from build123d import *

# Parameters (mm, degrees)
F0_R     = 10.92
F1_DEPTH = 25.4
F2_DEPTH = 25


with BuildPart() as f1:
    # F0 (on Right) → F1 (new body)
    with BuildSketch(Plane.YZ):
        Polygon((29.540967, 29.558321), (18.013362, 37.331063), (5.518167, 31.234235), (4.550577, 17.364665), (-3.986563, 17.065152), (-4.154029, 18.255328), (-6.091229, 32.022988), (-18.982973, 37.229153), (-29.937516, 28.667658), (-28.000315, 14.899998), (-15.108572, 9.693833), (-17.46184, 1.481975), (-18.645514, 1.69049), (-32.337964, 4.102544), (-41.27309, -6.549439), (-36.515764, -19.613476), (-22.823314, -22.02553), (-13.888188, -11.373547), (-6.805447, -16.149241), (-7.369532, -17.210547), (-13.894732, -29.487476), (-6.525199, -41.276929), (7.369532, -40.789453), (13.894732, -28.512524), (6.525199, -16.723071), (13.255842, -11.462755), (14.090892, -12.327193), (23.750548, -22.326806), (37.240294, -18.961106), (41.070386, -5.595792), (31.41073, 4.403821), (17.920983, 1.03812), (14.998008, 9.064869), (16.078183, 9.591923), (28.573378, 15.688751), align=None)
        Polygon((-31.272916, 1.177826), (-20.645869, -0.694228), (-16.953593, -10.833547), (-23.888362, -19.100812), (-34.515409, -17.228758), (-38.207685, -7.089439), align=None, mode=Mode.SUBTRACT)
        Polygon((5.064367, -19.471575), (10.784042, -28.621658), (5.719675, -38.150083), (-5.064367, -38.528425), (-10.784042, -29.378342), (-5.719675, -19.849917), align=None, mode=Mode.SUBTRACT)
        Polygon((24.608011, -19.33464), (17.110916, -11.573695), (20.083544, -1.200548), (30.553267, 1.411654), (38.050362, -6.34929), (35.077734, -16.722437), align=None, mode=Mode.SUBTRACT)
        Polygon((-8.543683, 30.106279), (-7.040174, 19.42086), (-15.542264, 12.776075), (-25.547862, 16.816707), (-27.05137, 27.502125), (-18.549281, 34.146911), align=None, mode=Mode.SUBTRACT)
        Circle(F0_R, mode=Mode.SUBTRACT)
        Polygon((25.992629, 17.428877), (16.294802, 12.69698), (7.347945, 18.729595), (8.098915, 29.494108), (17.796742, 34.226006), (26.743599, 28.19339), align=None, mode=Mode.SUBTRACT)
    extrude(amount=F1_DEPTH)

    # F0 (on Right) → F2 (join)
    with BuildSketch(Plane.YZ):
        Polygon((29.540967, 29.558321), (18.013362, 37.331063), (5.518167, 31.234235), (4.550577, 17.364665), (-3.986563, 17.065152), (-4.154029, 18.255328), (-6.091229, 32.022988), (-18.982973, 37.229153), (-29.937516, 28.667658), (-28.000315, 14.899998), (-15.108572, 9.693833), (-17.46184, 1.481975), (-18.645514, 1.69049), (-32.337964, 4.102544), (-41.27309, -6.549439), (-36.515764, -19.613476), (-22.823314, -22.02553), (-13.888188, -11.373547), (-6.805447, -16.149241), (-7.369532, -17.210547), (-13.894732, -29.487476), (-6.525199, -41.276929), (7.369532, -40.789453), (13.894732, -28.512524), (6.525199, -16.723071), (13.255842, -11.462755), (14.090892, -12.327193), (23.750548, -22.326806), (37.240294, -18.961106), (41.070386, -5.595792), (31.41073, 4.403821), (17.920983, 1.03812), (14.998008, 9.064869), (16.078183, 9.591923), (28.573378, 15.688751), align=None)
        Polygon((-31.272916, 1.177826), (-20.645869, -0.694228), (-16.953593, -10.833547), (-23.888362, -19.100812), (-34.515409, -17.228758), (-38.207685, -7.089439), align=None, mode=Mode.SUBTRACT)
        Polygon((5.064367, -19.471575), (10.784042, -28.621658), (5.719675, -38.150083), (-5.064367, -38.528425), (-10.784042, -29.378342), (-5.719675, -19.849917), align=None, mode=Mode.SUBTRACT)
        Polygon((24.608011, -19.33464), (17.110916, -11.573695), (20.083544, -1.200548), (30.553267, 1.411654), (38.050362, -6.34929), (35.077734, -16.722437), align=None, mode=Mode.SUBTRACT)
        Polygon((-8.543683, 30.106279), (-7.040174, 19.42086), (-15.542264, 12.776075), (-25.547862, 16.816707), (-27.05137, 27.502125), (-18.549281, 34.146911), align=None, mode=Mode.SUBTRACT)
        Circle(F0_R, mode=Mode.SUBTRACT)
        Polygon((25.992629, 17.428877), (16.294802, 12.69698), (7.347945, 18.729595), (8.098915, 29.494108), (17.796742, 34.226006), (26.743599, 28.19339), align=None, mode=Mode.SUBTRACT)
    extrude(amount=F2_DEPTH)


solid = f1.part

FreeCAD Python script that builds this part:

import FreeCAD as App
import Part
import Sketcher

V = App.Vector


def add_polygon(sketch, points):
    """Adds a closed chain of lines whose ends are joined by coincident constraints."""
    first, n = sketch.GeometryCount, len(points)
    for a, b in zip(points, points[1:] + points[:1]):
        sketch.addGeometry(Part.LineSegment(App.Vector(*a, 0), App.Vector(*b, 0)), False)
    for i in range(n):
        sketch.addConstraint(Sketcher.Constraint("Coincident", first + i, 2, first + (i + 1) % n, 1))

doc = App.newDocument("Part")
body = doc.addObject("PartDesign::Body", "Body")

sketch1 = doc.addObject("Sketcher::SketchObject", "Sketch")
body.addObject(sketch1)
sketch1.AttachmentSupport = (doc.YZ_Plane, [""])
sketch1.MapMode = "FlatFace"
add_polygon(sketch1, [(29.540967, 29.558321), (18.013362, 37.331063), (5.518167, 31.234235), (4.550577, 17.364665), (-3.986563, 17.065152), (-4.154029, 18.255328), (-6.091229, 32.022988), (-18.982973, 37.229153), (-29.937516, 28.667658), (-28.000315, 14.899998), (-15.108572, 9.693833), (-17.46184, 1.481975), (-18.645514, 1.69049), (-32.337964, 4.102544), (-41.27309, -6.549439), (-36.515764, -19.613476), (-22.823314, -22.02553), (-13.888188, -11.373547), (-6.805447, -16.149241), (-7.369532, -17.210547), (-13.894732, -29.487476), (-6.525199, -41.276929), (7.369532, -40.789453), (13.894732, -28.512524), (6.525199, -16.723071), (13.255842, -11.462755), (14.090892, -12.327193), (23.750548, -22.326806), (37.240294, -18.961106), (41.070386, -5.595792), (31.41073, 4.403821), (17.920983, 1.03812), (14.998008, 9.064869), (16.078183, 9.591923), (28.573378, 15.688751)])
add_polygon(sketch1, [(-38.207685, -7.089439), (-31.272916, 1.177826), (-20.645869, -0.694228), (-16.953593, -10.833547), (-23.888362, -19.100812), (-34.515409, -17.228758)])
add_polygon(sketch1, [(-5.719675, -19.849917), (5.064367, -19.471575), (10.784042, -28.621658), (5.719675, -38.150083), (-5.064367, -38.528425), (-10.784042, -29.378342)])
add_polygon(sketch1, [(35.077734, -16.722437), (24.608011, -19.33464), (17.110916, -11.573695), (20.083544, -1.200548), (30.553267, 1.411654), (38.050362, -6.34929)])
add_polygon(sketch1, [(-18.549281, 34.146911), (-8.543683, 30.106279), (-7.040174, 19.42086), (-15.542264, 12.776075), (-25.547862, 16.816707), (-27.05137, 27.502125)])
sketch1.addGeometry(Part.Circle(V(0, 0, 0), V(0, 0, 1), 10.92), False)
add_polygon(sketch1, [(26.743599, 28.19339), (25.992629, 17.428877), (16.294802, 12.69698), (7.347945, 18.729595), (8.098915, 29.494108), (17.796742, 34.226006)])
sketch1.addConstraint(Sketcher.Constraint("Coincident", 59, 3, -1, 1))
sketch1.addConstraint(Sketcher.Constraint("Diameter", 59, 21.84))
sketch1.addConstraint(Sketcher.Constraint("Distance", 4, 1.2019))
sketch1.addConstraint(Sketcher.Constraint("Distance", 11, 1.2019))
sketch1.addConstraint(Sketcher.Constraint("Distance", 18, 1.201899))
sketch1.addConstraint(Sketcher.Constraint("Distance", 25, 1.201899))
sketch1.addConstraint(Sketcher.Constraint("Distance", 32, 1.2019))
sketch1.addConstraint(Sketcher.Constraint("DistanceX", 20, 2, -1, 1, 6.525199))
sketch1.addConstraint(Sketcher.Constraint("DistanceX", -1, 1, 23, 2, 6.525199))
sketch1.addConstraint(Sketcher.Constraint("DistanceX", -1, 1, 65, 2, 26.743599))
sketch1.addConstraint(Sketcher.Constraint("Distance", 0, 13.90328))
sketch1.addConstraint(Sketcher.Constraint("Distance", 1, 13.903281))
sketch1.addConstraint(Sketcher.Constraint("Distance", 2, 13.90328))
sketch1.addConstraint(Sketcher.Constraint("Distance", 5, 13.90328))
sketch1.addConstraint(Sketcher.Constraint("Distance", 6, 13.903281))
sketch1.addConstraint(Sketcher.Constraint("Distance", 7, 13.903281))
sketch1.addConstraint(Sketcher.Constraint("Distance", 8, 13.903281))
sketch1.addConstraint(Sketcher.Constraint("Distance", 9, 13.90328))
sketch1.addConstraint(Sketcher.Constraint("Distance", 12, 13.90328))
sketch1.addConstraint(Sketcher.Constraint("Distance", 13, 13.903281))
sketch1.addConstraint(Sketcher.Constraint("Distance", 14, 13.903281))
sketch1.addConstraint(Sketcher.Constraint("Distance", 15, 13.90328))
sketch1.addConstraint(Sketcher.Constraint("Distance", 16, 13.903281))
sketch1.addConstraint(Sketcher.Constraint("Distance", 19, 13.903281))
sketch1.addConstraint(Sketcher.Constraint("Distance", 20, 13.903281))
sketch1.addConstraint(Sketcher.Constraint("Distance", 21, 13.90328))
sketch1.addConstraint(Sketcher.Constraint("Distance", 22, 13.903281))
sketch1.addConstraint(Sketcher.Constraint("Distance", 23, 13.903281))
sketch1.addConstraint(Sketcher.Constraint("Distance", 26, 13.903281))
sketch1.addConstraint(Sketcher.Constraint("Distance", 27, 13.90328))
sketch1.addConstraint(Sketcher.Constraint("Distance", 28, 13.903281))
sketch1.addConstraint(Sketcher.Constraint("Distance", 29, 13.903281))
sketch1.addConstraint(Sketcher.Constraint("Distance", 30, 13.903281))
sketch1.addConstraint(Sketcher.Constraint("Distance", 33, 13.903281))
sketch1.addConstraint(Sketcher.Constraint("Distance", 34, 13.90328))
sketch1.addConstraint(Sketcher.Constraint("DistanceX", 4, 2, -1, 1, 4.154029))
sketch1.addConstraint(Sketcher.Constraint("DistanceX", 5, 2, -1, 1, 6.091229))
sketch1.addConstraint(Sketcher.Constraint("DistanceX", 10, 2, -1, 1, 17.46184))
sketch1.addConstraint(Sketcher.Constraint("DistanceY", -1, 1, 11, 2, 1.69049))
sketch1.addConstraint(Sketcher.Constraint("DistanceX", 13, 2, -1, 1, 41.27309))
sketch1.addConstraint(Sketcher.Constraint("DistanceY", 13, 2, -1, 1, 6.549439))
sketch1.addConstraint(Sketcher.Constraint("DistanceY", 15, 2, -1, 1, 22.02553))
sketch1.addConstraint(Sketcher.Constraint("DistanceY", 17, 2, -1, 1, 16.149241))
sketch1.addConstraint(Sketcher.Constraint("DistanceY", 20, 2, -1, 1, 41.276929))
sketch1.addConstraint(Sketcher.Constraint("DistanceY", 23, 2, -1, 1, 16.723071))
sketch1.addConstraint(Sketcher.Constraint("DistanceX", -1, 1, 29, 2, 31.41073))
sketch1.addConstraint(Sketcher.Constraint("DistanceY", -1, 1, 29, 2, 4.403821))
sketch1.addConstraint(Sketcher.Constraint("DistanceY", -1, 1, 30, 2, 1.03812))
sketch1.addConstraint(Sketcher.Constraint("DistanceY", -1, 1, 31, 2, 9.064869))
sketch1.addConstraint(Sketcher.Constraint("DistanceX", -1, 1, 33, 2, 28.573378))
sketch1.addConstraint(Sketcher.Constraint("DistanceY", -1, 1, 33, 2, 15.688751))
sketch1.addConstraint(Sketcher.Constraint("DistanceY", -1, 1, 34, 2, 29.558321))
sketch1.addConstraint(Sketcher.Constraint("DistanceX", 36, 2, -1, 1, 20.645869))
sketch1.addConstraint(Sketcher.Constraint("DistanceX", 39, 2, -1, 1, 34.515409))
sketch1.addConstraint(Sketcher.Constraint("DistanceY", 40, 2, -1, 1, 7.089439))
sketch1.addConstraint(Sketcher.Constraint("DistanceY", 42, 2, -1, 1, 28.621658))
sketch1.addConstraint(Sketcher.Constraint("DistanceY", 45, 2, -1, 1, 29.378342))
sketch1.addConstraint(Sketcher.Constraint("DistanceX", -1, 1, 47, 2, 24.608011))
sketch1.addConstraint(Sketcher.Constraint("DistanceY", 47, 2, -1, 1, 19.33464))
sketch1.addConstraint(Sketcher.Constraint("DistanceY", 51, 2, -1, 1, 6.34929))
sketch1.addConstraint(Sketcher.Constraint("DistanceY", -1, 1, 53, 2, 30.106279))
sketch1.addConstraint(Sketcher.Constraint("DistanceY", -1, 1, 54, 2, 19.42086))
sketch1.addConstraint(Sketcher.Constraint("DistanceX", 56, 2, -1, 1, 25.547862))
sketch1.addConstraint(Sketcher.Constraint("DistanceX", 57, 2, -1, 1, 27.05137))
sketch1.addConstraint(Sketcher.Constraint("DistanceX", 58, 2, -1, 1, 18.549281))
sketch1.addConstraint(Sketcher.Constraint("DistanceY", -1, 1, 58, 2, 34.146911))
sketch1.addConstraint(Sketcher.Constraint("DistanceX", -1, 1, 60, 2, 25.992629))
sketch1.addConstraint(Sketcher.Constraint("DistanceY", -1, 1, 61, 2, 12.69698))
sketch1.addConstraint(Sketcher.Constraint("DistanceY", -1, 1, 63, 2, 29.494108))
sketch1.addConstraint(Sketcher.Constraint("DistanceX", -1, 1, 64, 2, 17.796742))
sketch1.addConstraint(Sketcher.Constraint("DistanceY", -1, 1, 65, 2, 28.19339))
sketch1.addConstraint(Sketcher.Constraint("Distance", 3, 8.542392))
sketch1.addConstraint(Sketcher.Constraint("Distance", 10, 8.542393))
sketch1.addConstraint(Sketcher.Constraint("Distance", 17, 8.542393))
sketch1.addConstraint(Sketcher.Constraint("Distance", 24, 8.542393))
sketch1.addConstraint(Sketcher.Constraint("Distance", 35, 10.790676))
sketch1.addConstraint(Sketcher.Constraint("Distance", 36, 10.790677))
sketch1.addConstraint(Sketcher.Constraint("Distance", 37, 10.790676))
sketch1.addConstraint(Sketcher.Constraint("Distance", 38, 10.790676))
sketch1.addConstraint(Sketcher.Constraint("Distance", 39, 10.790677))
sketch1.addConstraint(Sketcher.Constraint("Distance", 40, 10.790676))
sketch1.addConstraint(Sketcher.Constraint("Distance", 41, 10.790677))
sketch1.addConstraint(Sketcher.Constraint("Distance", 42, 10.790677))
sketch1.addConstraint(Sketcher.Constraint("Distance", 43, 10.790676))
sketch1.addConstraint(Sketcher.Constraint("Distance", 44, 10.790677))
sketch1.addConstraint(Sketcher.Constraint("Distance", 45, 10.790677))
sketch1.addConstraint(Sketcher.Constraint("Distance", 46, 10.790676))
sketch1.addConstraint(Sketcher.Constraint("Distance", 47, 10.790677))
sketch1.addConstraint(Sketcher.Constraint("Distance", 48, 10.790677))
sketch1.addConstraint(Sketcher.Constraint("Distance", 49, 10.790676))
sketch1.addConstraint(Sketcher.Constraint("Distance", 50, 10.790676))
sketch1.addConstraint(Sketcher.Constraint("Distance", 51, 10.790676))
sketch1.addConstraint(Sketcher.Constraint("Distance", 52, 10.790676))
sketch1.addConstraint(Sketcher.Constraint("Distance", 53, 10.790676))
sketch1.addConstraint(Sketcher.Constraint("Distance", 54, 10.790677))
sketch1.addConstraint(Sketcher.Constraint("Distance", 55, 10.790677))
sketch1.addConstraint(Sketcher.Constraint("Distance", 56, 10.790676))
sketch1.addConstraint(Sketcher.Constraint("Distance", 57, 10.790676))
sketch1.addConstraint(Sketcher.Constraint("Distance", 58, 10.790676))
sketch1.addConstraint(Sketcher.Constraint("Distance", 60, 10.790676))
sketch1.addConstraint(Sketcher.Constraint("Distance", 61, 10.790676))
sketch1.addConstraint(Sketcher.Constraint("Distance", 62, 10.790676))
sketch1.addConstraint(Sketcher.Constraint("Distance", 63, 10.790676))
sketch1.addConstraint(Sketcher.Constraint("Distance", 64, 10.790677))
sketch1.addConstraint(Sketcher.Constraint("Distance", 65, 10.790677))
sketch1.addConstraint(Sketcher.Constraint("DistanceX", -1, 1, 0, 2, 18.013362))
sketch1.addConstraint(Sketcher.Constraint("DistanceX", -1, 1, 1, 2, 5.518167))
sketch1.addConstraint(Sketcher.Constraint("DistanceX", -1, 1, 2, 2, 4.550577))
sketch1.addConstraint(Sketcher.Constraint("DistanceX", 3, 2, -1, 1, 3.986563))
sketch1.addConstraint(Sketcher.Constraint("DistanceX", 6, 2, -1, 1, 18.982973))
sketch1.addConstraint(Sketcher.Constraint("DistanceX", 7, 2, -1, 1, 29.937516))
sketch1.addConstraint(Sketcher.Constraint("DistanceX", 8, 2, -1, 1, 28.000315))
sketch1.addConstraint(Sketcher.Constraint("DistanceX", 9, 2, -1, 1, 15.108572))
sketch1.addConstraint(Sketcher.Constraint("DistanceX", 14, 2, -1, 1, 36.515764))
sketch1.addConstraint(Sketcher.Constraint("DistanceX", 16, 2, -1, 1, 13.888188))
sketch1.addConstraint(Sketcher.Constraint("DistanceX", 18, 2, -1, 1, 7.369532))
sketch1.addConstraint(Sketcher.Constraint("DistanceX", -1, 1, 21, 2, 7.369532))
sketch1.addConstraint(Sketcher.Constraint("DistanceX", -1, 1, 24, 2, 13.255842))
sketch1.addConstraint(Sketcher.Constraint("DistanceX", -1, 1, 25, 2, 14.090892))
sketch1.addConstraint(Sketcher.Constraint("DistanceX", -1, 1, 26, 2, 23.750548))
sketch1.addConstraint(Sketcher.Constraint("DistanceX", -1, 1, 27, 2, 37.240294))
sketch1.addConstraint(Sketcher.Constraint("DistanceX", -1, 1, 32, 2, 16.078183))
sketch1.addConstraint(Sketcher.Constraint("DistanceX", 35, 2, -1, 1, 31.272916))
sketch1.addConstraint(Sketcher.Constraint("DistanceY", -1, 1, 35, 2, 1.177826))
sketch1.addConstraint(Sketcher.Constraint("DistanceX", 37, 2, -1, 1, 16.953593))
sketch1.addConstraint(Sketcher.Constraint("DistanceX", -1, 1, 41, 2, 5.064367))
sketch1.addConstraint(Sketcher.Constraint("DistanceY", 41, 2, -1, 1, 19.471575))
sketch1.addConstraint(Sketcher.Constraint("DistanceX", -1, 1, 43, 2, 5.719675))
sketch1.addConstraint(Sketcher.Constraint("DistanceX", 44, 2, -1, 1, 5.064367))
sketch1.addConstraint(Sketcher.Constraint("DistanceX", -1, 1, 48, 2, 17.110916))
sketch1.addConstraint(Sketcher.Constraint("DistanceX", -1, 1, 49, 2, 20.083544))
sketch1.addConstraint(Sketcher.Constraint("DistanceX", -1, 1, 50, 2, 30.553267))
pad1 = doc.addObject("PartDesign::Pad", "Pad")
body.addObject(pad1)
pad1.Profile = sketch1
pad1.Length = 25.4

sketch2 = doc.addObject("Sketcher::SketchObject", "Sketch001")
body.addObject(sketch2)
sketch2.AttachmentSupport = (doc.YZ_Plane, [""])
sketch2.MapMode = "FlatFace"
add_polygon(sketch2, [(29.540967, 29.558321), (18.013362, 37.331063), (5.518167, 31.234235), (4.550577, 17.364665), (-3.986563, 17.065152), (-4.154029, 18.255328), (-6.091229, 32.022988), (-18.982973, 37.229153), (-29.937516, 28.667658), (-28.000315, 14.899998), (-15.108572, 9.693833), (-17.46184, 1.481975), (-18.645514, 1.69049), (-32.337964, 4.102544), (-41.27309, -6.549439), (-36.515764, -19.613476), (-22.823314, -22.02553), (-13.888188, -11.373547), (-6.805447, -16.149241), (-7.369532, -17.210547), (-13.894732, -29.487476), (-6.525199, -41.276929), (7.369532, -40.789453), (13.894732, -28.512524), (6.525199, -16.723071), (13.255842, -11.462755), (14.090892, -12.327193), (23.750548, -22.326806), (37.240294, -18.961106), (41.070386, -5.595792), (31.41073, 4.403821), (17.920983, 1.03812), (14.998008, 9.064869), (16.078183, 9.591923), (28.573378, 15.688751)])
add_polygon(sketch2, [(-38.207685, -7.089439), (-31.272916, 1.177826), (-20.645869, -0.694228), (-16.953593, -10.833547), (-23.888362, -19.100812), (-34.515409, -17.228758)])
add_polygon(sketch2, [(-5.719675, -19.849917), (5.064367, -19.471575), (10.784042, -28.621658), (5.719675, -38.150083), (-5.064367, -38.528425), (-10.784042, -29.378342)])
add_polygon(sketch2, [(35.077734, -16.722437), (24.608011, -19.33464), (17.110916, -11.573695), (20.083544, -1.200548), (30.553267, 1.411654), (38.050362, -6.34929)])
add_polygon(sketch2, [(-18.549281, 34.146911), (-8.543683, 30.106279), (-7.040174, 19.42086), (-15.542264, 12.776075), (-25.547862, 16.816707), (-27.05137, 27.502125)])
sketch2.addGeometry(Part.Circle(V(0, 0, 0), V(0, 0, 1), 10.92), False)
add_polygon(sketch2, [(26.743599, 28.19339), (25.992629, 17.428877), (16.294802, 12.69698), (7.347945, 18.729595), (8.098915, 29.494108), (17.796742, 34.226006)])
sketch2.addConstraint(Sketcher.Constraint("Coincident", 59, 3, -1, 1))
sketch2.addConstraint(Sketcher.Constraint("Diameter", 59, 21.84))
sketch2.addConstraint(Sketcher.Constraint("Distance", 4, 1.2019))
sketch2.addConstraint(Sketcher.Constraint("Distance", 11, 1.2019))
sketch2.addConstraint(Sketcher.Constraint("Distance", 18, 1.201899))
sketch2.addConstraint(Sketcher.Constraint("Distance", 25, 1.201899))
sketch2.addConstraint(Sketcher.Constraint("Distance", 32, 1.2019))
sketch2.addConstraint(Sketcher.Constraint("DistanceX", 20, 2, -1, 1, 6.525199))
sketch2.addConstraint(Sketcher.Constraint("DistanceX", -1, 1, 23, 2, 6.525199))
sketch2.addConstraint(Sketcher.Constraint("DistanceX", -1, 1, 65, 2, 26.743599))
sketch2.addConstraint(Sketcher.Constraint("Distance", 0, 13.90328))
sketch2.addConstraint(Sketcher.Constraint("Distance", 1, 13.903281))
sketch2.addConstraint(Sketcher.Constraint("Distance", 2, 13.90328))
sketch2.addConstraint(Sketcher.Constraint("Distance", 5, 13.90328))
sketch2.addConstraint(Sketcher.Constraint("Distance", 6, 13.903281))
sketch2.addConstraint(Sketcher.Constraint("Distance", 7, 13.903281))
sketch2.addConstraint(Sketcher.Constraint("Distance", 8, 13.903281))
sketch2.addConstraint(Sketcher.Constraint("Distance", 9, 13.90328))
sketch2.addConstraint(Sketcher.Constraint("Distance", 12, 13.90328))
sketch2.addConstraint(Sketcher.Constraint("Distance", 13, 13.903281))
sketch2.addConstraint(Sketcher.Constraint("Distance", 14, 13.903281))
sketch2.addConstraint(Sketcher.Constraint("Distance", 15, 13.90328))
sketch2.addConstraint(Sketcher.Constraint("Distance", 16, 13.903281))
sketch2.addConstraint(Sketcher.Constraint("Distance", 19, 13.903281))
sketch2.addConstraint(Sketcher.Constraint("Distance", 20, 13.903281))
sketch2.addConstraint(Sketcher.Constraint("Distance", 21, 13.90328))
sketch2.addConstraint(Sketcher.Constraint("Distance", 22, 13.903281))
sketch2.addConstraint(Sketcher.Constraint("Distance", 23, 13.903281))
sketch2.addConstraint(Sketcher.Constraint("Distance", 26, 13.903281))
sketch2.addConstraint(Sketcher.Constraint("Distance", 27, 13.90328))
sketch2.addConstraint(Sketcher.Constraint("Distance", 28, 13.903281))
sketch2.addConstraint(Sketcher.Constraint("Distance", 29, 13.903281))
sketch2.addConstraint(Sketcher.Constraint("Distance", 30, 13.903281))
sketch2.addConstraint(Sketcher.Constraint("Distance", 33, 13.903281))
sketch2.addConstraint(Sketcher.Constraint("Distance", 34, 13.90328))
sketch2.addConstraint(Sketcher.Constraint("DistanceX", 4, 2, -1, 1, 4.154029))
sketch2.addConstraint(Sketcher.Constraint("DistanceX", 5, 2, -1, 1, 6.091229))
sketch2.addConstraint(Sketcher.Constraint("DistanceX", 10, 2, -1, 1, 17.46184))
sketch2.addConstraint(Sketcher.Constraint("DistanceY", -1, 1, 11, 2, 1.69049))
sketch2.addConstraint(Sketcher.Constraint("DistanceX", 13, 2, -1, 1, 41.27309))
sketch2.addConstraint(Sketcher.Constraint("DistanceY", 13, 2, -1, 1, 6.549439))
sketch2.addConstraint(Sketcher.Constraint("DistanceY", 15, 2, -1, 1, 22.02553))
sketch2.addConstraint(Sketcher.Constraint("DistanceY", 17, 2, -1, 1, 16.149241))
sketch2.addConstraint(Sketcher.Constraint("DistanceY", 20, 2, -1, 1, 41.276929))
sketch2.addConstraint(Sketcher.Constraint("DistanceY", 23, 2, -1, 1, 16.723071))
sketch2.addConstraint(Sketcher.Constraint("DistanceX", -1, 1, 29, 2, 31.41073))
sketch2.addConstraint(Sketcher.Constraint("DistanceY", -1, 1, 29, 2, 4.403821))
sketch2.addConstraint(Sketcher.Constraint("DistanceY", -1, 1, 30, 2, 1.03812))
sketch2.addConstraint(Sketcher.Constraint("DistanceY", -1, 1, 31, 2, 9.064869))
sketch2.addConstraint(Sketcher.Constraint("DistanceX", -1, 1, 33, 2, 28.573378))
sketch2.addConstraint(Sketcher.Constraint("DistanceY", -1, 1, 33, 2, 15.688751))
sketch2.addConstraint(Sketcher.Constraint("DistanceY", -1, 1, 34, 2, 29.558321))
sketch2.addConstraint(Sketcher.Constraint("DistanceX", 36, 2, -1, 1, 20.645869))
sketch2.addConstraint(Sketcher.Constraint("DistanceX", 39, 2, -1, 1, 34.515409))
sketch2.addConstraint(Sketcher.Constraint("DistanceY", 40, 2, -1, 1, 7.089439))
sketch2.addConstraint(Sketcher.Constraint("DistanceY", 42, 2, -1, 1, 28.621658))
sketch2.addConstraint(Sketcher.Constraint("DistanceY", 45, 2, -1, 1, 29.378342))
sketch2.addConstraint(Sketcher.Constraint("DistanceX", -1, 1, 47, 2, 24.608011))
sketch2.addConstraint(Sketcher.Constraint("DistanceY", 47, 2, -1, 1, 19.33464))
sketch2.addConstraint(Sketcher.Constraint("DistanceY", 51, 2, -1, 1, 6.34929))
sketch2.addConstraint(Sketcher.Constraint("DistanceY", -1, 1, 53, 2, 30.106279))
sketch2.addConstraint(Sketcher.Constraint("DistanceY", -1, 1, 54, 2, 19.42086))
sketch2.addConstraint(Sketcher.Constraint("DistanceX", 56, 2, -1, 1, 25.547862))
sketch2.addConstraint(Sketcher.Constraint("DistanceX", 57, 2, -1, 1, 27.05137))
sketch2.addConstraint(Sketcher.Constraint("DistanceX", 58, 2, -1, 1, 18.549281))
sketch2.addConstraint(Sketcher.Constraint("DistanceY", -1, 1, 58, 2, 34.146911))
sketch2.addConstraint(Sketcher.Constraint("DistanceX", -1, 1, 60, 2, 25.992629))
sketch2.addConstraint(Sketcher.Constraint("DistanceY", -1, 1, 61, 2, 12.69698))
sketch2.addConstraint(Sketcher.Constraint("DistanceY", -1, 1, 63, 2, 29.494108))
sketch2.addConstraint(Sketcher.Constraint("DistanceX", -1, 1, 64, 2, 17.796742))
sketch2.addConstraint(Sketcher.Constraint("DistanceY", -1, 1, 65, 2, 28.19339))
sketch2.addConstraint(Sketcher.Constraint("Distance", 3, 8.542392))
sketch2.addConstraint(Sketcher.Constraint("Distance", 10, 8.542393))
sketch2.addConstraint(Sketcher.Constraint("Distance", 17, 8.542393))
sketch2.addConstraint(Sketcher.Constraint("Distance", 24, 8.542393))
sketch2.addConstraint(Sketcher.Constraint("Distance", 35, 10.790676))
sketch2.addConstraint(Sketcher.Constraint("Distance", 36, 10.790677))
sketch2.addConstraint(Sketcher.Constraint("Distance", 37, 10.790676))
sketch2.addConstraint(Sketcher.Constraint("Distance", 38, 10.790676))
sketch2.addConstraint(Sketcher.Constraint("Distance", 39, 10.790677))
sketch2.addConstraint(Sketcher.Constraint("Distance", 40, 10.790676))
sketch2.addConstraint(Sketcher.Constraint("Distance", 41, 10.790677))
sketch2.addConstraint(Sketcher.Constraint("Distance", 42, 10.790677))
sketch2.addConstraint(Sketcher.Constraint("Distance", 43, 10.790676))
sketch2.addConstraint(Sketcher.Constraint("Distance", 44, 10.790677))
sketch2.addConstraint(Sketcher.Constraint("Distance", 45, 10.790677))
sketch2.addConstraint(Sketcher.Constraint("Distance", 46, 10.790676))
sketch2.addConstraint(Sketcher.Constraint("Distance", 47, 10.790677))
sketch2.addConstraint(Sketcher.Constraint("Distance", 48, 10.790677))
sketch2.addConstraint(Sketcher.Constraint("Distance", 49, 10.790676))
sketch2.addConstraint(Sketcher.Constraint("Distance", 50, 10.790676))
sketch2.addConstraint(Sketcher.Constraint("Distance", 51, 10.790676))
sketch2.addConstraint(Sketcher.Constraint("Distance", 52, 10.790676))
sketch2.addConstraint(Sketcher.Constraint("Distance", 53, 10.790676))
sketch2.addConstraint(Sketcher.Constraint("Distance", 54, 10.790677))
sketch2.addConstraint(Sketcher.Constraint("Distance", 55, 10.790677))
sketch2.addConstraint(Sketcher.Constraint("Distance", 56, 10.790676))
sketch2.addConstraint(Sketcher.Constraint("Distance", 57, 10.790676))
sketch2.addConstraint(Sketcher.Constraint("Distance", 58, 10.790676))
sketch2.addConstraint(Sketcher.Constraint("Distance", 60, 10.790676))
sketch2.addConstraint(Sketcher.Constraint("Distance", 61, 10.790676))
sketch2.addConstraint(Sketcher.Constraint("Distance", 62, 10.790676))
sketch2.addConstraint(Sketcher.Constraint("Distance", 63, 10.790676))
sketch2.addConstraint(Sketcher.Constraint("Distance", 64, 10.790677))
sketch2.addConstraint(Sketcher.Constraint("Distance", 65, 10.790677))
sketch2.addConstraint(Sketcher.Constraint("DistanceX", -1, 1, 0, 2, 18.013362))
sketch2.addConstraint(Sketcher.Constraint("DistanceX", -1, 1, 1, 2, 5.518167))
sketch2.addConstraint(Sketcher.Constraint("DistanceX", -1, 1, 2, 2, 4.550577))
sketch2.addConstraint(Sketcher.Constraint("DistanceX", 3, 2, -1, 1, 3.986563))
sketch2.addConstraint(Sketcher.Constraint("DistanceX", 6, 2, -1, 1, 18.982973))
sketch2.addConstraint(Sketcher.Constraint("DistanceX", 7, 2, -1, 1, 29.937516))
sketch2.addConstraint(Sketcher.Constraint("DistanceX", 8, 2, -1, 1, 28.000315))
sketch2.addConstraint(Sketcher.Constraint("DistanceX", 9, 2, -1, 1, 15.108572))
sketch2.addConstraint(Sketcher.Constraint("DistanceX", 14, 2, -1, 1, 36.515764))
sketch2.addConstraint(Sketcher.Constraint("DistanceX", 16, 2, -1, 1, 13.888188))
sketch2.addConstraint(Sketcher.Constraint("DistanceX", 18, 2, -1, 1, 7.369532))
sketch2.addConstraint(Sketcher.Constraint("DistanceX", -1, 1, 21, 2, 7.369532))
sketch2.addConstraint(Sketcher.Constraint("DistanceX", -1, 1, 24, 2, 13.255842))
sketch2.addConstraint(Sketcher.Constraint("DistanceX", -1, 1, 25, 2, 14.090892))
sketch2.addConstraint(Sketcher.Constraint("DistanceX", -1, 1, 26, 2, 23.750548))
sketch2.addConstraint(Sketcher.Constraint("DistanceX", -1, 1, 27, 2, 37.240294))
sketch2.addConstraint(Sketcher.Constraint("DistanceX", -1, 1, 32, 2, 16.078183))
sketch2.addConstraint(Sketcher.Constraint("DistanceX", 35, 2, -1, 1, 31.272916))
sketch2.addConstraint(Sketcher.Constraint("DistanceY", -1, 1, 35, 2, 1.177826))
sketch2.addConstraint(Sketcher.Constraint("DistanceX", 37, 2, -1, 1, 16.953593))
sketch2.addConstraint(Sketcher.Constraint("DistanceX", -1, 1, 41, 2, 5.064367))
sketch2.addConstraint(Sketcher.Constraint("DistanceY", 41, 2, -1, 1, 19.471575))
sketch2.addConstraint(Sketcher.Constraint("DistanceX", -1, 1, 43, 2, 5.719675))
sketch2.addConstraint(Sketcher.Constraint("DistanceX", 44, 2, -1, 1, 5.064367))
sketch2.addConstraint(Sketcher.Constraint("DistanceX", -1, 1, 48, 2, 17.110916))
sketch2.addConstraint(Sketcher.Constraint("DistanceX", -1, 1, 49, 2, 20.083544))
sketch2.addConstraint(Sketcher.Constraint("DistanceX", -1, 1, 50, 2, 30.553267))
pad2 = doc.addObject("PartDesign::Pad", "Pad001")
body.addObject(pad2)
pad2.Profile = sketch2
pad2.Length = 25

doc.recompute()
